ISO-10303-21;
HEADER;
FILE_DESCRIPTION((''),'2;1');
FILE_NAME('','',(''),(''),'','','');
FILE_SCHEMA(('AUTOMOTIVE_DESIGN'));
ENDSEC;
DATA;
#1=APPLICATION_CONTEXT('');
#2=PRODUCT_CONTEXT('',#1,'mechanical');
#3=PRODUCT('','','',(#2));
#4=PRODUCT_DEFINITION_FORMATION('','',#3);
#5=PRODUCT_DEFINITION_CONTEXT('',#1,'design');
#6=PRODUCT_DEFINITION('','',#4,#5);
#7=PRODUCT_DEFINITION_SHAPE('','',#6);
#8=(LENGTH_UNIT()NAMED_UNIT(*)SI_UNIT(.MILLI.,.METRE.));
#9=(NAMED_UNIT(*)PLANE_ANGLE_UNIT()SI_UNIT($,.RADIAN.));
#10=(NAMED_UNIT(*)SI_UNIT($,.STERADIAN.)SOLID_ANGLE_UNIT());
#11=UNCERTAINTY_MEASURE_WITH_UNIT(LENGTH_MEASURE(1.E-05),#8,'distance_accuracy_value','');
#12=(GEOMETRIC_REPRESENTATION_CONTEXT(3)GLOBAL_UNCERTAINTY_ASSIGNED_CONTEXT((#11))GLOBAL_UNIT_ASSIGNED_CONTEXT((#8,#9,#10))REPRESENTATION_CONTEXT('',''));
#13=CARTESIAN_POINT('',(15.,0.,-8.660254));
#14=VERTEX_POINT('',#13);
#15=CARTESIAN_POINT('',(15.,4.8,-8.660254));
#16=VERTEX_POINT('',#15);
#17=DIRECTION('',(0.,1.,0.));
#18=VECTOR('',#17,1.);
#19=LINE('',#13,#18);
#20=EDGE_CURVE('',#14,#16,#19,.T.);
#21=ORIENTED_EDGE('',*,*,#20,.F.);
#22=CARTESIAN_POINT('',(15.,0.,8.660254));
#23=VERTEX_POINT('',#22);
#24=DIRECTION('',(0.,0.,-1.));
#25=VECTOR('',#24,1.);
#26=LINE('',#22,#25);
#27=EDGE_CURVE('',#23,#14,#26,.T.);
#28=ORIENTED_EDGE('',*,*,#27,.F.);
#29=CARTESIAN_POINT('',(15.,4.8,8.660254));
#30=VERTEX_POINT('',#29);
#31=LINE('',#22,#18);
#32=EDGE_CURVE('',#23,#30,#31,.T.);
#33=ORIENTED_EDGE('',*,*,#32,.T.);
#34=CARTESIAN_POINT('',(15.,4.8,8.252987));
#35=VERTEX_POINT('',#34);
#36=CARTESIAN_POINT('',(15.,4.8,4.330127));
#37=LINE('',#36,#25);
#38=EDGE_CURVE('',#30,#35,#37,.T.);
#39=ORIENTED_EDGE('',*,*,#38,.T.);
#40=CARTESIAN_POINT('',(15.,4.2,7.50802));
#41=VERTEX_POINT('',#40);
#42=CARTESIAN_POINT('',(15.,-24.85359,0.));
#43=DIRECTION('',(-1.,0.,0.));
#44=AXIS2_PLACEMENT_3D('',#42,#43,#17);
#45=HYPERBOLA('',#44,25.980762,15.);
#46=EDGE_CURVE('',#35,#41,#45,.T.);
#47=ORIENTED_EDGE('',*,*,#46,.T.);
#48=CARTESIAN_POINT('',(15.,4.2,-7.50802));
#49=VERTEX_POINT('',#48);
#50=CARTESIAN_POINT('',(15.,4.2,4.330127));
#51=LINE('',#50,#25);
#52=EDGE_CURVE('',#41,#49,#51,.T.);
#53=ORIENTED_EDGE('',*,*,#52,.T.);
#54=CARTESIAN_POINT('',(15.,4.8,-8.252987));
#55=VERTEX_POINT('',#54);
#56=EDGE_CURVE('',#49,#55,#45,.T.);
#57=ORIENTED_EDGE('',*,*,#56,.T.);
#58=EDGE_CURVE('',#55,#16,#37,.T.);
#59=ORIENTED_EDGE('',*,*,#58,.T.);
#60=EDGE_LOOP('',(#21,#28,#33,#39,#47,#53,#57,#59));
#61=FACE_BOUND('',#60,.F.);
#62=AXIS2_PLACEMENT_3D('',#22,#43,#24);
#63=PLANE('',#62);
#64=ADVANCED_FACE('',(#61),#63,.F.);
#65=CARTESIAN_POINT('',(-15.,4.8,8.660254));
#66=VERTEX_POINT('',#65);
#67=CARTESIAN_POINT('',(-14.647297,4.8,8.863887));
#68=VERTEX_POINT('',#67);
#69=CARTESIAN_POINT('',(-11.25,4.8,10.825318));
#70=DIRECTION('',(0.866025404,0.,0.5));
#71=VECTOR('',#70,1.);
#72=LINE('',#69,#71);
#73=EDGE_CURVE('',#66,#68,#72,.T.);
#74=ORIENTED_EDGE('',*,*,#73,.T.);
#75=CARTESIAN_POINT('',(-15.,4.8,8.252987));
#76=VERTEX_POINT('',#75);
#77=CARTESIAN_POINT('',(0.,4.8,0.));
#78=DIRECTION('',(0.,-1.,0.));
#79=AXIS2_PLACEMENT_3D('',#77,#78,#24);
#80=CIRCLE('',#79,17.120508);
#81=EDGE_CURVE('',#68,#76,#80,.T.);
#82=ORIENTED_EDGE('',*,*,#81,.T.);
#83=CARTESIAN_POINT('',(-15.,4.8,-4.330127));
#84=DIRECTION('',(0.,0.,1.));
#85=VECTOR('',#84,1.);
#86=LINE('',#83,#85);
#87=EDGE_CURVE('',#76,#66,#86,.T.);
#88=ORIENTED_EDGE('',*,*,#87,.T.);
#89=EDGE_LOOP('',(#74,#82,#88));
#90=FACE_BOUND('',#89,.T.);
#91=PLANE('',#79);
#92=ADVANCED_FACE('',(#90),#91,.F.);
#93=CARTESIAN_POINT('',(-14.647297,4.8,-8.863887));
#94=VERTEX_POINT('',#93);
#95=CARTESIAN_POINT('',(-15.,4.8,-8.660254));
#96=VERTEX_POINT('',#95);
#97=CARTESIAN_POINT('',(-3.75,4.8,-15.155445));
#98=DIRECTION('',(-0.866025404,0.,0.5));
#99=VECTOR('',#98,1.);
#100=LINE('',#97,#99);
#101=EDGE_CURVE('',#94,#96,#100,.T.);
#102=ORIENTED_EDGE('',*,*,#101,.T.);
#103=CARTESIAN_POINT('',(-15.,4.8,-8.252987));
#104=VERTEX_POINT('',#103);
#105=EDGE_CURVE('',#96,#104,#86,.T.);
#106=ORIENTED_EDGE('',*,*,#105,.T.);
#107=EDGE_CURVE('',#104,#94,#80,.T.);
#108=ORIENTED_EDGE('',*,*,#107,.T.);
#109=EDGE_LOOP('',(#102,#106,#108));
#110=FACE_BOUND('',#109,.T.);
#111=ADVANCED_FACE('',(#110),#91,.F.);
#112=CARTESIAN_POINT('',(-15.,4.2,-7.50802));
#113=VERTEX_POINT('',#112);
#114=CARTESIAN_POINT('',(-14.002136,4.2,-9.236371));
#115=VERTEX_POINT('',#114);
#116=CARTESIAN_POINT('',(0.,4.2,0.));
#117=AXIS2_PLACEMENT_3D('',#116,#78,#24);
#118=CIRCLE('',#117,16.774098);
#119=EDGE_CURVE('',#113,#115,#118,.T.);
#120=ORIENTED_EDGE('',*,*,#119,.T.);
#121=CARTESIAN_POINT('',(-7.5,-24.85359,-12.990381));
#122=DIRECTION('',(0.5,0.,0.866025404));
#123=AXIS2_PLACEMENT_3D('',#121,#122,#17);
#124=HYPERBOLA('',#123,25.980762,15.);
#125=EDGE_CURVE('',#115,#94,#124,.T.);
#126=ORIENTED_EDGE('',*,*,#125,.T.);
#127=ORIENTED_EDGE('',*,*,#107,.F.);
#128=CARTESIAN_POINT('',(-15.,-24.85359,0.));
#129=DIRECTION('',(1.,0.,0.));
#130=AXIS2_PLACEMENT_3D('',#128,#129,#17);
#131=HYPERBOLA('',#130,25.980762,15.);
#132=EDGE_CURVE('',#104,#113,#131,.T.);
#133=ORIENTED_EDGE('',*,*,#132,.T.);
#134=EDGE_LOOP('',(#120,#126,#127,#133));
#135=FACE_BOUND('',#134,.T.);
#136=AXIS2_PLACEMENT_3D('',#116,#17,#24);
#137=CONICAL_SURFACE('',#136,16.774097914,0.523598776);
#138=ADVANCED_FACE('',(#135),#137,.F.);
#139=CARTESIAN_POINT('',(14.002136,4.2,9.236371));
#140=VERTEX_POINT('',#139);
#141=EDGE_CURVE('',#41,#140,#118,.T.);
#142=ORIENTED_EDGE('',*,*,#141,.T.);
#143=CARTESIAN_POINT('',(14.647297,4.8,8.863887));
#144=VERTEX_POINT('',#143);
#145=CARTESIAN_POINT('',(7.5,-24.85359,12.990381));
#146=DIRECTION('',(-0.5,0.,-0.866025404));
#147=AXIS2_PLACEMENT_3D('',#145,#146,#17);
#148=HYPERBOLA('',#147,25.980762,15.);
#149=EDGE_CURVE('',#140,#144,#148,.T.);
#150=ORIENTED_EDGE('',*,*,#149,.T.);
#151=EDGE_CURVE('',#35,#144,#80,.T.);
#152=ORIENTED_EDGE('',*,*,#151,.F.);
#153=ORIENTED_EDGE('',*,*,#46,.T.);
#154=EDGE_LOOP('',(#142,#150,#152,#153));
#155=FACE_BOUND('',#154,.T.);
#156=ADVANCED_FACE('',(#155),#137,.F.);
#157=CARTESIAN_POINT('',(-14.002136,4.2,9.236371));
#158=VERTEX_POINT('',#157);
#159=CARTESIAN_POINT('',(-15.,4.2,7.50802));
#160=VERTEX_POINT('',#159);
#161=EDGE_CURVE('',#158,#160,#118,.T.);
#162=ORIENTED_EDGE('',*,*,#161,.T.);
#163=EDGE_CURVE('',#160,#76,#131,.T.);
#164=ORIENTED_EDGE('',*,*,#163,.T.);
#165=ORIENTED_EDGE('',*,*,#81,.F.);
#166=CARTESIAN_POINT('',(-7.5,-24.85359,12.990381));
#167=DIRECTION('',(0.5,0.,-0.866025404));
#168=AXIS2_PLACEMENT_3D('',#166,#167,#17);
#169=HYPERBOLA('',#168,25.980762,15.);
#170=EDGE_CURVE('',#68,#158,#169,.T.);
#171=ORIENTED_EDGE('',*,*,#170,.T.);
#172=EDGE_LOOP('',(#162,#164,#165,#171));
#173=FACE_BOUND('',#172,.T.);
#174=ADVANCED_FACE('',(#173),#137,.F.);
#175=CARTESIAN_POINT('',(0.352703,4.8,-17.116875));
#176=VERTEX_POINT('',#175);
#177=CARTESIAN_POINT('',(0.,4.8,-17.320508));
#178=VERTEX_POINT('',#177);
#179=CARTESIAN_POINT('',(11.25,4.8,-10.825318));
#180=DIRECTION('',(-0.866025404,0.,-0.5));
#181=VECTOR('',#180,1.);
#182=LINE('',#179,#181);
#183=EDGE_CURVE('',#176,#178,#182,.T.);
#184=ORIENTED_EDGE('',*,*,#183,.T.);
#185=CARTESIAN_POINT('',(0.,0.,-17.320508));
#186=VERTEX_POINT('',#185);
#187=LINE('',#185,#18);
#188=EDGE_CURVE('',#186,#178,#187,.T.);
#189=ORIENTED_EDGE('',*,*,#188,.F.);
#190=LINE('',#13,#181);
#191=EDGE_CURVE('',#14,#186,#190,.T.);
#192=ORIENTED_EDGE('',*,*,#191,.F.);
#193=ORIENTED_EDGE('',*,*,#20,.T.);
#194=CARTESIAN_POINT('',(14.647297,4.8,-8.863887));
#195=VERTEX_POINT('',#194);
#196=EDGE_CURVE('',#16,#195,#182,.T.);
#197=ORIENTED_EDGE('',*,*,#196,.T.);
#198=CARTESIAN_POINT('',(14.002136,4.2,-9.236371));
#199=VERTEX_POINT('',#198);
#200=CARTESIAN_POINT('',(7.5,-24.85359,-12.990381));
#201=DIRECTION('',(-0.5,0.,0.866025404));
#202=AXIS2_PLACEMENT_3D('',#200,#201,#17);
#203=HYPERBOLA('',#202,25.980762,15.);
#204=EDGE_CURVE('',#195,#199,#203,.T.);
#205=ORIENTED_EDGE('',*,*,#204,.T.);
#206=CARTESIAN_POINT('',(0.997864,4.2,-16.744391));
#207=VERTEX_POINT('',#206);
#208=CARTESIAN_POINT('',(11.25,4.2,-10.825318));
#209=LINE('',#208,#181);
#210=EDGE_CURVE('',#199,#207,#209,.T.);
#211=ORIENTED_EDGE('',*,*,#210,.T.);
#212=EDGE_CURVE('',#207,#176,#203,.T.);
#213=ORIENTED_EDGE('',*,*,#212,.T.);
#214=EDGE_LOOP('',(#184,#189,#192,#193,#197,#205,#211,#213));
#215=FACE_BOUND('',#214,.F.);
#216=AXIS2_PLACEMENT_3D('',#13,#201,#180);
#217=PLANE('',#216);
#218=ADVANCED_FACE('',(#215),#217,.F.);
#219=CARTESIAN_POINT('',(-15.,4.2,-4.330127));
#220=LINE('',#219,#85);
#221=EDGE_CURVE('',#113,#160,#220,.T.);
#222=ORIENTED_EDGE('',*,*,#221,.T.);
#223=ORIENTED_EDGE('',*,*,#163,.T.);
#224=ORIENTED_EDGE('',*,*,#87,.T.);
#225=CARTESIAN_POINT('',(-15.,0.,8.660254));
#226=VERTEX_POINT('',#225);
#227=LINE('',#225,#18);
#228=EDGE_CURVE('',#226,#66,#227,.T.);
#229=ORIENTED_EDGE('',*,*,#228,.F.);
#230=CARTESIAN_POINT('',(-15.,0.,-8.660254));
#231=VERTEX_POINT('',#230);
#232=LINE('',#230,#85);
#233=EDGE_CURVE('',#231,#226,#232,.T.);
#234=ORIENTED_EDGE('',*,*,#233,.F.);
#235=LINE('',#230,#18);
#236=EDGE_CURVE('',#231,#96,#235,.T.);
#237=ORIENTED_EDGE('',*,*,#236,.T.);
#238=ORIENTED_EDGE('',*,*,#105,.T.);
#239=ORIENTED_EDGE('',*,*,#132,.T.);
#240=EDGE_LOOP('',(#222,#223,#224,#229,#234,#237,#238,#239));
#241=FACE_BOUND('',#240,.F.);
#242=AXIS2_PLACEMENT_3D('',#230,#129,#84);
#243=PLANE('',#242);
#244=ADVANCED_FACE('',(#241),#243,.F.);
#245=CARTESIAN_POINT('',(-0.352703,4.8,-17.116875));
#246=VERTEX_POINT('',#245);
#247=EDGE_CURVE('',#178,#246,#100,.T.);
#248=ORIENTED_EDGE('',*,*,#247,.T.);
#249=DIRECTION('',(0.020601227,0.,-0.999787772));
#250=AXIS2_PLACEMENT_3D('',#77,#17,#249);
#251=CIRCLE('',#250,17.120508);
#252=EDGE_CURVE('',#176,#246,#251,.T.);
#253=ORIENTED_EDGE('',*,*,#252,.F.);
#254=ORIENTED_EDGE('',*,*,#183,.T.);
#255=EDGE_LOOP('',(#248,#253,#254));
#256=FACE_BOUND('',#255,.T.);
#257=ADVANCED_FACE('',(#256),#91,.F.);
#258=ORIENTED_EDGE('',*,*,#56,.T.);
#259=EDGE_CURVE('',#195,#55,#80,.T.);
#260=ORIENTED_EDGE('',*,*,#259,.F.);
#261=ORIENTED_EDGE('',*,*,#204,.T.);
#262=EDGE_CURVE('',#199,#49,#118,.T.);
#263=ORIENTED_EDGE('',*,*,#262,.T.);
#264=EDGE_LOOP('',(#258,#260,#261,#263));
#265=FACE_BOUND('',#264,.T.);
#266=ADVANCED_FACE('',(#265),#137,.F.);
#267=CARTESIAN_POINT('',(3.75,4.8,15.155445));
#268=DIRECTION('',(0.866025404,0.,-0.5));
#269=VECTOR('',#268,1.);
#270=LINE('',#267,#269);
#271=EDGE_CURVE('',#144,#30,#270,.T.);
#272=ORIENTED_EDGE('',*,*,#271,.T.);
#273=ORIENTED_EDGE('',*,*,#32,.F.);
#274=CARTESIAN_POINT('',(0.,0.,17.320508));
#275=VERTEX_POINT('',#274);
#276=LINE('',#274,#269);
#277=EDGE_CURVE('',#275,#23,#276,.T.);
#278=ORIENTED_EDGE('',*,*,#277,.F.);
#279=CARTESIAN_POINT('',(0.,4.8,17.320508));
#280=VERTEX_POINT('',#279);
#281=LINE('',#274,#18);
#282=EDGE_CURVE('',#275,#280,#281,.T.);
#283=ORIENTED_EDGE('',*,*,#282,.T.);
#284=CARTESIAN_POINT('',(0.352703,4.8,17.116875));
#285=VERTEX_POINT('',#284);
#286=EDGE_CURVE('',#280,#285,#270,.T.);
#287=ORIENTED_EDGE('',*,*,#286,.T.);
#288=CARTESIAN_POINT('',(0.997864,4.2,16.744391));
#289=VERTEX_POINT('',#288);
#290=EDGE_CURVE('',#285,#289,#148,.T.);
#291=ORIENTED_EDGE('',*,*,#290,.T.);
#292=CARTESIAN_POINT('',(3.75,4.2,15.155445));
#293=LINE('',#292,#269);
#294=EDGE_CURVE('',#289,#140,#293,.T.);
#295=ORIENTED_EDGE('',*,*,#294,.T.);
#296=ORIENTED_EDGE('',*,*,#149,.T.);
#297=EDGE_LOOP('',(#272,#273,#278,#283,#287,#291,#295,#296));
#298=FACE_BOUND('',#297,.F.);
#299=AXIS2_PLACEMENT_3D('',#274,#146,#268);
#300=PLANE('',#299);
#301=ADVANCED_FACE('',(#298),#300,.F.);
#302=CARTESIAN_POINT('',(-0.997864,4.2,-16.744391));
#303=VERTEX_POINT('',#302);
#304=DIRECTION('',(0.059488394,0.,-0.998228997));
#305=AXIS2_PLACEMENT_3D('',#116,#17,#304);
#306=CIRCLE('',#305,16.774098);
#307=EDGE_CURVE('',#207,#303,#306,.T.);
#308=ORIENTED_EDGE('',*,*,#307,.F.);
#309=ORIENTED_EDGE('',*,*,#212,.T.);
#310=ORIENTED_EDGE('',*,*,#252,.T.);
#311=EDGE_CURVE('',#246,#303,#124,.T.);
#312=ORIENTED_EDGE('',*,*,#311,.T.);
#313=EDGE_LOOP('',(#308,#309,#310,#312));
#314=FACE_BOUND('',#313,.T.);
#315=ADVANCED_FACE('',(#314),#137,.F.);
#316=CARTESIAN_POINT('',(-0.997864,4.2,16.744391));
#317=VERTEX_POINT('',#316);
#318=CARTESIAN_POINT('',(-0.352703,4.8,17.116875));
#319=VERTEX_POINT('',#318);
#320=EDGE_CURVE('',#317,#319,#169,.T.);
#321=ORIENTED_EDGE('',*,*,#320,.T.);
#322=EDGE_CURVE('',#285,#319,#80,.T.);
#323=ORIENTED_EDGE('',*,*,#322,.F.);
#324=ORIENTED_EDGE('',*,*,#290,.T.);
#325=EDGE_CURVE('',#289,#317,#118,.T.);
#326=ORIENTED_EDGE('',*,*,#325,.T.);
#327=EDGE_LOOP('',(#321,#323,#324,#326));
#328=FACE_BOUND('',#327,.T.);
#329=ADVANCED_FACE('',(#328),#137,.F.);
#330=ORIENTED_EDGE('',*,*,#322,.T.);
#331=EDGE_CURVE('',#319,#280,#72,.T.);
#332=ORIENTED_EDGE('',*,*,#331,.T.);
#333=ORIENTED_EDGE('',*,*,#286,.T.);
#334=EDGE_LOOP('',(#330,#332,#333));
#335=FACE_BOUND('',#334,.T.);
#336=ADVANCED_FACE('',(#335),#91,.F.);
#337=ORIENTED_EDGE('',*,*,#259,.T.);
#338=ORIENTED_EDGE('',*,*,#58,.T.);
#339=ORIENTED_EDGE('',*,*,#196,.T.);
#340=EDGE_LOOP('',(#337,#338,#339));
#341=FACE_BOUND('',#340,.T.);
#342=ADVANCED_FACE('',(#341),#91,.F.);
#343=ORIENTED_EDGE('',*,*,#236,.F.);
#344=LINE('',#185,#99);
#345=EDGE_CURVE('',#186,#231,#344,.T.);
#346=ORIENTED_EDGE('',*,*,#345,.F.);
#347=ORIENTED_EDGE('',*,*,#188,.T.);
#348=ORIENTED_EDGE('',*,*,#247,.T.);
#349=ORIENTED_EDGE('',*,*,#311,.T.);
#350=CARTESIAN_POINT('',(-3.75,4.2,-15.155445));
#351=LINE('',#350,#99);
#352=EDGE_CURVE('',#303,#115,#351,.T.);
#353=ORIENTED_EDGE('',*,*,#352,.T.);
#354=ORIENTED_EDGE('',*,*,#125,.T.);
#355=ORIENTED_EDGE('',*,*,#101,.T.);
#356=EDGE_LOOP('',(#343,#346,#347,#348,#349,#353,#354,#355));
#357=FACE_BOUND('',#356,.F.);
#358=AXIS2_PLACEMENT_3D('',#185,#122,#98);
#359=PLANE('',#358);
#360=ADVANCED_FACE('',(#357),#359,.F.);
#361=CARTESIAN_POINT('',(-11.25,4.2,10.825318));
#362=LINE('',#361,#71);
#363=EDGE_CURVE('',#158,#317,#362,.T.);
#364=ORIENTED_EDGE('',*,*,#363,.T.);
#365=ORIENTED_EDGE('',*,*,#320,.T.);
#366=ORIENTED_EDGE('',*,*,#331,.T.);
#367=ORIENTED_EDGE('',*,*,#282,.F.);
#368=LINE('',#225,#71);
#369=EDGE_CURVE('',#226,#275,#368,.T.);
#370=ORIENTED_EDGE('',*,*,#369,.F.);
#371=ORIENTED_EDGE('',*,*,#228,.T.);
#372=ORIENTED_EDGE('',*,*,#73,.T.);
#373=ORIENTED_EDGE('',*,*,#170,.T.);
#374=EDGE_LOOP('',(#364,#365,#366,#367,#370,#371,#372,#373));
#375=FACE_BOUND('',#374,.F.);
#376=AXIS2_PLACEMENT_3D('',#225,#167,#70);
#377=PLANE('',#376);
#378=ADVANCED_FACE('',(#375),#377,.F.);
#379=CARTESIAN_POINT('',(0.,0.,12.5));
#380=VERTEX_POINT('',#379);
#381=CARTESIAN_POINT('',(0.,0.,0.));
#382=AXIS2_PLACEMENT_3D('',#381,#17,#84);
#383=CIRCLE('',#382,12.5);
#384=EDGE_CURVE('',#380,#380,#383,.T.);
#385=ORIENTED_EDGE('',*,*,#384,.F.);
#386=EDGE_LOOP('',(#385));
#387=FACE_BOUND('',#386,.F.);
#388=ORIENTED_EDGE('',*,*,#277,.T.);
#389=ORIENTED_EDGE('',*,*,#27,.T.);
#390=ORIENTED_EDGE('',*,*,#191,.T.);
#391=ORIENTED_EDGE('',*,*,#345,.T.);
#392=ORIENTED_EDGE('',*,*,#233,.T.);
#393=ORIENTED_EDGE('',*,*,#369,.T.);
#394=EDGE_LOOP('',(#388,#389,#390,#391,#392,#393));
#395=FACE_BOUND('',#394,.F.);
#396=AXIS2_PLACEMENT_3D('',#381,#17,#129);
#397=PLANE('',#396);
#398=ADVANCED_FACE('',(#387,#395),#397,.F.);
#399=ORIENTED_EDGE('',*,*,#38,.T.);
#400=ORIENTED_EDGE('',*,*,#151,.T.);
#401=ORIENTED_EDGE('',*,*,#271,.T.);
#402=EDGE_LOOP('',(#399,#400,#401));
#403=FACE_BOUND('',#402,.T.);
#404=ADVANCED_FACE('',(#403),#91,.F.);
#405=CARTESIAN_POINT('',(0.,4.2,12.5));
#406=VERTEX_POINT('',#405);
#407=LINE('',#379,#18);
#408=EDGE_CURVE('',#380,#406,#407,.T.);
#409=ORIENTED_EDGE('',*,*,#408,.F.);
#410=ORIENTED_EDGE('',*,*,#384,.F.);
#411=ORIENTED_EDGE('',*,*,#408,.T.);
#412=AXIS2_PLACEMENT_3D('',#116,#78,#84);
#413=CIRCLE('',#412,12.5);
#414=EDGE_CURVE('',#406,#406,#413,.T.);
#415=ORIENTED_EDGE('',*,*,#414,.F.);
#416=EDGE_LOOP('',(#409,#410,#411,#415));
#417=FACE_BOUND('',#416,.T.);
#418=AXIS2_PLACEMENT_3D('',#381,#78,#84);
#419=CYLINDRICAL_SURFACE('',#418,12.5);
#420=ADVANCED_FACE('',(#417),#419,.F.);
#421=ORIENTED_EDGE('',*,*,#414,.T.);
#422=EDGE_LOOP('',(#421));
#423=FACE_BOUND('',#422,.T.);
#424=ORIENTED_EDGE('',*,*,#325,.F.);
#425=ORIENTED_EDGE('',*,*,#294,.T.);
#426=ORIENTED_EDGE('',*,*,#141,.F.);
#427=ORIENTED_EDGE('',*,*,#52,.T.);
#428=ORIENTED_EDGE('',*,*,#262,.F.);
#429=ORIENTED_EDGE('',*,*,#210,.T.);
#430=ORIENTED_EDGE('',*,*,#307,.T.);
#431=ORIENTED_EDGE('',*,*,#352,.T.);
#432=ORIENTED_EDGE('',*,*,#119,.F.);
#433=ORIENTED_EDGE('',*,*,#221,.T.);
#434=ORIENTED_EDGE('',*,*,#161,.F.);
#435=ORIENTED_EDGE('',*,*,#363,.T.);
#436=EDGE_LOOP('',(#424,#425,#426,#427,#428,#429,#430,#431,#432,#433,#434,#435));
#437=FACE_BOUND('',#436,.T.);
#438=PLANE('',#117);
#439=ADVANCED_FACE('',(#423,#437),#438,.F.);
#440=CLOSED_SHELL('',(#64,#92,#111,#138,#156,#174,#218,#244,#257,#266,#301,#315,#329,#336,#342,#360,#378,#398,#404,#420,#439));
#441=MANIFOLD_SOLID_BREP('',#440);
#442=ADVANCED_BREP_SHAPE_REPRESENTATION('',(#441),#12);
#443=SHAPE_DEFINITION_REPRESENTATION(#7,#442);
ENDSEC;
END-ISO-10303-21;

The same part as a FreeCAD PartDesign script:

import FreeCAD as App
import Part
import Sketcher

V = App.Vector
Q = App.Units.Quantity


def add_polygon(sketch, points):
    """Adds a closed chain of lines whose ends are joined by coincident constraints."""
    first, n = sketch.GeometryCount, len(points)
    for a, b in zip(points, points[1:] + points[:1]):
        sketch.addGeometry(Part.LineSegment(App.Vector(*a, 0), App.Vector(*b, 0)), False)
    for i in range(n):
        sketch.addConstraint(Sketcher.Constraint("Coincident", first + i, 2, first + (i + 1) % n, 1))

doc = App.newDocument("Part")
params = doc.addObject("Spreadsheet::Sheet", "Params")
for row, (alias, value) in enumerate([
    ("sketch1_diameter", "25 mm"),
    ("pad1_length", "7 mm"),
    ("sketch2_height", "0.2 mm"),
    ("groove_angle", "360 deg"),
], start=1):
    params.set(f"A{row}", alias)
    params.set(f"B{row}", "=" + value)
    params.setAlias(f"B{row}", alias)

body = doc.addObject("PartDesign::Body", "Body")

# Sketch on XZ plane
sketch1 = body.newObject("Sketcher::SketchObject", "Sketch")
sketch1.AttachmentSupport = (doc.getObject("XZ_Plane"), [""])
sketch1.MapMode = "FlatFace"
add_polygon(sketch1, [(0, -17), (-15, -9), (-15, 9), (0, 17), (15, 9), (15, -9)])  # lines 0-5
sketch1.addGeometry(Part.Circle(V(0, 0, 0), V(0, 0, 1), 12), False)  # 6
sketch1.addConstraint([
    Sketcher.Constraint("Vertical", 1),
    Sketcher.Constraint("Vertical", 4),
    Sketcher.Constraint("Coincident", 6, 3, -1, 1),
    Sketcher.Constraint("Symmetric", 0, 2, 3, 2, -1, 1),
    Sketcher.Constraint("Symmetric", 2, 2, 5, 2, -1, 1),
    Sketcher.Constraint("PointOnObject", 2, 2, -2),
    Sketcher.Constraint("Parallel", 2, 5),
    Sketcher.Constraint("Horizontal", 1, 2, 3, 2),
    Sketcher.Constraint("Diameter", 6, 25.0),
    Sketcher.Constraint("Angle", 0, Q("150 deg")),
    Sketcher.Constraint("DistanceX", 0, 2, -1, 1, 15.0),
    Sketcher.Constraint("DistanceY", 1, 1, 1, 2, 17.320508),
])
sketch1.setExpression("Constraints[14]", "Params.sketch1_diameter")
pad1 = body.newObject("PartDesign::Pad", "Pad")
pad1.Profile = sketch1
pad1.setExpression("Length", "Params.pad1_length")
pad1.Reversed = True

# Sketch on YZ plane
sketch2 = body.newObject("Sketcher::SketchObject", "Sketch001")
sketch2.AttachmentSupport = (doc.getObject("YZ_Plane"), [""])
sketch2.MapMode = "FlatFace"
add_polygon(sketch2, [(4.2, 16.77), (4.2, 0), (15.11, 0), (15.11, 17.32), (4.8, 17.32), (4.8, 17.12)])  # lines 0-5
sketch2.addConstraint([
    Sketcher.Constraint("Vertical", 0),
    Sketcher.Constraint("Horizontal", 1),
    Sketcher.Constraint("Vertical", 2),
    Sketcher.Constraint("Horizontal", 3),
    Sketcher.Constraint("Vertical", 4),
    Sketcher.Constraint("PointOnObject", 0, 2, -1),
    Sketcher.Constraint("Angle", 5, Q("-150 deg")),
    Sketcher.Constraint("DistanceY", 4, 2, 4, 1, 0.2),
    Sketcher.Constraint("DistanceX", -1, 1, 0, 2, 4.2),
    Sketcher.Constraint("DistanceX", -1, 1, 3, 2, 4.8),
    Sketcher.Constraint("DistanceY", 2, 1, 2, 2, 17.320508),
    Sketcher.Constraint("DistanceX", 1, 1, 1, 2, 10.908314),
])
sketch2.setExpression("Constraints[13]", "Params.sketch2_height")
groove = body.newObject("PartDesign::Groove", "Groove")
groove.Profile = sketch2
groove.ReferenceAxis = (sketch2, ["H_Axis"])
groove.setExpression("Angle", "Params.groove_angle")

doc.recompute()
